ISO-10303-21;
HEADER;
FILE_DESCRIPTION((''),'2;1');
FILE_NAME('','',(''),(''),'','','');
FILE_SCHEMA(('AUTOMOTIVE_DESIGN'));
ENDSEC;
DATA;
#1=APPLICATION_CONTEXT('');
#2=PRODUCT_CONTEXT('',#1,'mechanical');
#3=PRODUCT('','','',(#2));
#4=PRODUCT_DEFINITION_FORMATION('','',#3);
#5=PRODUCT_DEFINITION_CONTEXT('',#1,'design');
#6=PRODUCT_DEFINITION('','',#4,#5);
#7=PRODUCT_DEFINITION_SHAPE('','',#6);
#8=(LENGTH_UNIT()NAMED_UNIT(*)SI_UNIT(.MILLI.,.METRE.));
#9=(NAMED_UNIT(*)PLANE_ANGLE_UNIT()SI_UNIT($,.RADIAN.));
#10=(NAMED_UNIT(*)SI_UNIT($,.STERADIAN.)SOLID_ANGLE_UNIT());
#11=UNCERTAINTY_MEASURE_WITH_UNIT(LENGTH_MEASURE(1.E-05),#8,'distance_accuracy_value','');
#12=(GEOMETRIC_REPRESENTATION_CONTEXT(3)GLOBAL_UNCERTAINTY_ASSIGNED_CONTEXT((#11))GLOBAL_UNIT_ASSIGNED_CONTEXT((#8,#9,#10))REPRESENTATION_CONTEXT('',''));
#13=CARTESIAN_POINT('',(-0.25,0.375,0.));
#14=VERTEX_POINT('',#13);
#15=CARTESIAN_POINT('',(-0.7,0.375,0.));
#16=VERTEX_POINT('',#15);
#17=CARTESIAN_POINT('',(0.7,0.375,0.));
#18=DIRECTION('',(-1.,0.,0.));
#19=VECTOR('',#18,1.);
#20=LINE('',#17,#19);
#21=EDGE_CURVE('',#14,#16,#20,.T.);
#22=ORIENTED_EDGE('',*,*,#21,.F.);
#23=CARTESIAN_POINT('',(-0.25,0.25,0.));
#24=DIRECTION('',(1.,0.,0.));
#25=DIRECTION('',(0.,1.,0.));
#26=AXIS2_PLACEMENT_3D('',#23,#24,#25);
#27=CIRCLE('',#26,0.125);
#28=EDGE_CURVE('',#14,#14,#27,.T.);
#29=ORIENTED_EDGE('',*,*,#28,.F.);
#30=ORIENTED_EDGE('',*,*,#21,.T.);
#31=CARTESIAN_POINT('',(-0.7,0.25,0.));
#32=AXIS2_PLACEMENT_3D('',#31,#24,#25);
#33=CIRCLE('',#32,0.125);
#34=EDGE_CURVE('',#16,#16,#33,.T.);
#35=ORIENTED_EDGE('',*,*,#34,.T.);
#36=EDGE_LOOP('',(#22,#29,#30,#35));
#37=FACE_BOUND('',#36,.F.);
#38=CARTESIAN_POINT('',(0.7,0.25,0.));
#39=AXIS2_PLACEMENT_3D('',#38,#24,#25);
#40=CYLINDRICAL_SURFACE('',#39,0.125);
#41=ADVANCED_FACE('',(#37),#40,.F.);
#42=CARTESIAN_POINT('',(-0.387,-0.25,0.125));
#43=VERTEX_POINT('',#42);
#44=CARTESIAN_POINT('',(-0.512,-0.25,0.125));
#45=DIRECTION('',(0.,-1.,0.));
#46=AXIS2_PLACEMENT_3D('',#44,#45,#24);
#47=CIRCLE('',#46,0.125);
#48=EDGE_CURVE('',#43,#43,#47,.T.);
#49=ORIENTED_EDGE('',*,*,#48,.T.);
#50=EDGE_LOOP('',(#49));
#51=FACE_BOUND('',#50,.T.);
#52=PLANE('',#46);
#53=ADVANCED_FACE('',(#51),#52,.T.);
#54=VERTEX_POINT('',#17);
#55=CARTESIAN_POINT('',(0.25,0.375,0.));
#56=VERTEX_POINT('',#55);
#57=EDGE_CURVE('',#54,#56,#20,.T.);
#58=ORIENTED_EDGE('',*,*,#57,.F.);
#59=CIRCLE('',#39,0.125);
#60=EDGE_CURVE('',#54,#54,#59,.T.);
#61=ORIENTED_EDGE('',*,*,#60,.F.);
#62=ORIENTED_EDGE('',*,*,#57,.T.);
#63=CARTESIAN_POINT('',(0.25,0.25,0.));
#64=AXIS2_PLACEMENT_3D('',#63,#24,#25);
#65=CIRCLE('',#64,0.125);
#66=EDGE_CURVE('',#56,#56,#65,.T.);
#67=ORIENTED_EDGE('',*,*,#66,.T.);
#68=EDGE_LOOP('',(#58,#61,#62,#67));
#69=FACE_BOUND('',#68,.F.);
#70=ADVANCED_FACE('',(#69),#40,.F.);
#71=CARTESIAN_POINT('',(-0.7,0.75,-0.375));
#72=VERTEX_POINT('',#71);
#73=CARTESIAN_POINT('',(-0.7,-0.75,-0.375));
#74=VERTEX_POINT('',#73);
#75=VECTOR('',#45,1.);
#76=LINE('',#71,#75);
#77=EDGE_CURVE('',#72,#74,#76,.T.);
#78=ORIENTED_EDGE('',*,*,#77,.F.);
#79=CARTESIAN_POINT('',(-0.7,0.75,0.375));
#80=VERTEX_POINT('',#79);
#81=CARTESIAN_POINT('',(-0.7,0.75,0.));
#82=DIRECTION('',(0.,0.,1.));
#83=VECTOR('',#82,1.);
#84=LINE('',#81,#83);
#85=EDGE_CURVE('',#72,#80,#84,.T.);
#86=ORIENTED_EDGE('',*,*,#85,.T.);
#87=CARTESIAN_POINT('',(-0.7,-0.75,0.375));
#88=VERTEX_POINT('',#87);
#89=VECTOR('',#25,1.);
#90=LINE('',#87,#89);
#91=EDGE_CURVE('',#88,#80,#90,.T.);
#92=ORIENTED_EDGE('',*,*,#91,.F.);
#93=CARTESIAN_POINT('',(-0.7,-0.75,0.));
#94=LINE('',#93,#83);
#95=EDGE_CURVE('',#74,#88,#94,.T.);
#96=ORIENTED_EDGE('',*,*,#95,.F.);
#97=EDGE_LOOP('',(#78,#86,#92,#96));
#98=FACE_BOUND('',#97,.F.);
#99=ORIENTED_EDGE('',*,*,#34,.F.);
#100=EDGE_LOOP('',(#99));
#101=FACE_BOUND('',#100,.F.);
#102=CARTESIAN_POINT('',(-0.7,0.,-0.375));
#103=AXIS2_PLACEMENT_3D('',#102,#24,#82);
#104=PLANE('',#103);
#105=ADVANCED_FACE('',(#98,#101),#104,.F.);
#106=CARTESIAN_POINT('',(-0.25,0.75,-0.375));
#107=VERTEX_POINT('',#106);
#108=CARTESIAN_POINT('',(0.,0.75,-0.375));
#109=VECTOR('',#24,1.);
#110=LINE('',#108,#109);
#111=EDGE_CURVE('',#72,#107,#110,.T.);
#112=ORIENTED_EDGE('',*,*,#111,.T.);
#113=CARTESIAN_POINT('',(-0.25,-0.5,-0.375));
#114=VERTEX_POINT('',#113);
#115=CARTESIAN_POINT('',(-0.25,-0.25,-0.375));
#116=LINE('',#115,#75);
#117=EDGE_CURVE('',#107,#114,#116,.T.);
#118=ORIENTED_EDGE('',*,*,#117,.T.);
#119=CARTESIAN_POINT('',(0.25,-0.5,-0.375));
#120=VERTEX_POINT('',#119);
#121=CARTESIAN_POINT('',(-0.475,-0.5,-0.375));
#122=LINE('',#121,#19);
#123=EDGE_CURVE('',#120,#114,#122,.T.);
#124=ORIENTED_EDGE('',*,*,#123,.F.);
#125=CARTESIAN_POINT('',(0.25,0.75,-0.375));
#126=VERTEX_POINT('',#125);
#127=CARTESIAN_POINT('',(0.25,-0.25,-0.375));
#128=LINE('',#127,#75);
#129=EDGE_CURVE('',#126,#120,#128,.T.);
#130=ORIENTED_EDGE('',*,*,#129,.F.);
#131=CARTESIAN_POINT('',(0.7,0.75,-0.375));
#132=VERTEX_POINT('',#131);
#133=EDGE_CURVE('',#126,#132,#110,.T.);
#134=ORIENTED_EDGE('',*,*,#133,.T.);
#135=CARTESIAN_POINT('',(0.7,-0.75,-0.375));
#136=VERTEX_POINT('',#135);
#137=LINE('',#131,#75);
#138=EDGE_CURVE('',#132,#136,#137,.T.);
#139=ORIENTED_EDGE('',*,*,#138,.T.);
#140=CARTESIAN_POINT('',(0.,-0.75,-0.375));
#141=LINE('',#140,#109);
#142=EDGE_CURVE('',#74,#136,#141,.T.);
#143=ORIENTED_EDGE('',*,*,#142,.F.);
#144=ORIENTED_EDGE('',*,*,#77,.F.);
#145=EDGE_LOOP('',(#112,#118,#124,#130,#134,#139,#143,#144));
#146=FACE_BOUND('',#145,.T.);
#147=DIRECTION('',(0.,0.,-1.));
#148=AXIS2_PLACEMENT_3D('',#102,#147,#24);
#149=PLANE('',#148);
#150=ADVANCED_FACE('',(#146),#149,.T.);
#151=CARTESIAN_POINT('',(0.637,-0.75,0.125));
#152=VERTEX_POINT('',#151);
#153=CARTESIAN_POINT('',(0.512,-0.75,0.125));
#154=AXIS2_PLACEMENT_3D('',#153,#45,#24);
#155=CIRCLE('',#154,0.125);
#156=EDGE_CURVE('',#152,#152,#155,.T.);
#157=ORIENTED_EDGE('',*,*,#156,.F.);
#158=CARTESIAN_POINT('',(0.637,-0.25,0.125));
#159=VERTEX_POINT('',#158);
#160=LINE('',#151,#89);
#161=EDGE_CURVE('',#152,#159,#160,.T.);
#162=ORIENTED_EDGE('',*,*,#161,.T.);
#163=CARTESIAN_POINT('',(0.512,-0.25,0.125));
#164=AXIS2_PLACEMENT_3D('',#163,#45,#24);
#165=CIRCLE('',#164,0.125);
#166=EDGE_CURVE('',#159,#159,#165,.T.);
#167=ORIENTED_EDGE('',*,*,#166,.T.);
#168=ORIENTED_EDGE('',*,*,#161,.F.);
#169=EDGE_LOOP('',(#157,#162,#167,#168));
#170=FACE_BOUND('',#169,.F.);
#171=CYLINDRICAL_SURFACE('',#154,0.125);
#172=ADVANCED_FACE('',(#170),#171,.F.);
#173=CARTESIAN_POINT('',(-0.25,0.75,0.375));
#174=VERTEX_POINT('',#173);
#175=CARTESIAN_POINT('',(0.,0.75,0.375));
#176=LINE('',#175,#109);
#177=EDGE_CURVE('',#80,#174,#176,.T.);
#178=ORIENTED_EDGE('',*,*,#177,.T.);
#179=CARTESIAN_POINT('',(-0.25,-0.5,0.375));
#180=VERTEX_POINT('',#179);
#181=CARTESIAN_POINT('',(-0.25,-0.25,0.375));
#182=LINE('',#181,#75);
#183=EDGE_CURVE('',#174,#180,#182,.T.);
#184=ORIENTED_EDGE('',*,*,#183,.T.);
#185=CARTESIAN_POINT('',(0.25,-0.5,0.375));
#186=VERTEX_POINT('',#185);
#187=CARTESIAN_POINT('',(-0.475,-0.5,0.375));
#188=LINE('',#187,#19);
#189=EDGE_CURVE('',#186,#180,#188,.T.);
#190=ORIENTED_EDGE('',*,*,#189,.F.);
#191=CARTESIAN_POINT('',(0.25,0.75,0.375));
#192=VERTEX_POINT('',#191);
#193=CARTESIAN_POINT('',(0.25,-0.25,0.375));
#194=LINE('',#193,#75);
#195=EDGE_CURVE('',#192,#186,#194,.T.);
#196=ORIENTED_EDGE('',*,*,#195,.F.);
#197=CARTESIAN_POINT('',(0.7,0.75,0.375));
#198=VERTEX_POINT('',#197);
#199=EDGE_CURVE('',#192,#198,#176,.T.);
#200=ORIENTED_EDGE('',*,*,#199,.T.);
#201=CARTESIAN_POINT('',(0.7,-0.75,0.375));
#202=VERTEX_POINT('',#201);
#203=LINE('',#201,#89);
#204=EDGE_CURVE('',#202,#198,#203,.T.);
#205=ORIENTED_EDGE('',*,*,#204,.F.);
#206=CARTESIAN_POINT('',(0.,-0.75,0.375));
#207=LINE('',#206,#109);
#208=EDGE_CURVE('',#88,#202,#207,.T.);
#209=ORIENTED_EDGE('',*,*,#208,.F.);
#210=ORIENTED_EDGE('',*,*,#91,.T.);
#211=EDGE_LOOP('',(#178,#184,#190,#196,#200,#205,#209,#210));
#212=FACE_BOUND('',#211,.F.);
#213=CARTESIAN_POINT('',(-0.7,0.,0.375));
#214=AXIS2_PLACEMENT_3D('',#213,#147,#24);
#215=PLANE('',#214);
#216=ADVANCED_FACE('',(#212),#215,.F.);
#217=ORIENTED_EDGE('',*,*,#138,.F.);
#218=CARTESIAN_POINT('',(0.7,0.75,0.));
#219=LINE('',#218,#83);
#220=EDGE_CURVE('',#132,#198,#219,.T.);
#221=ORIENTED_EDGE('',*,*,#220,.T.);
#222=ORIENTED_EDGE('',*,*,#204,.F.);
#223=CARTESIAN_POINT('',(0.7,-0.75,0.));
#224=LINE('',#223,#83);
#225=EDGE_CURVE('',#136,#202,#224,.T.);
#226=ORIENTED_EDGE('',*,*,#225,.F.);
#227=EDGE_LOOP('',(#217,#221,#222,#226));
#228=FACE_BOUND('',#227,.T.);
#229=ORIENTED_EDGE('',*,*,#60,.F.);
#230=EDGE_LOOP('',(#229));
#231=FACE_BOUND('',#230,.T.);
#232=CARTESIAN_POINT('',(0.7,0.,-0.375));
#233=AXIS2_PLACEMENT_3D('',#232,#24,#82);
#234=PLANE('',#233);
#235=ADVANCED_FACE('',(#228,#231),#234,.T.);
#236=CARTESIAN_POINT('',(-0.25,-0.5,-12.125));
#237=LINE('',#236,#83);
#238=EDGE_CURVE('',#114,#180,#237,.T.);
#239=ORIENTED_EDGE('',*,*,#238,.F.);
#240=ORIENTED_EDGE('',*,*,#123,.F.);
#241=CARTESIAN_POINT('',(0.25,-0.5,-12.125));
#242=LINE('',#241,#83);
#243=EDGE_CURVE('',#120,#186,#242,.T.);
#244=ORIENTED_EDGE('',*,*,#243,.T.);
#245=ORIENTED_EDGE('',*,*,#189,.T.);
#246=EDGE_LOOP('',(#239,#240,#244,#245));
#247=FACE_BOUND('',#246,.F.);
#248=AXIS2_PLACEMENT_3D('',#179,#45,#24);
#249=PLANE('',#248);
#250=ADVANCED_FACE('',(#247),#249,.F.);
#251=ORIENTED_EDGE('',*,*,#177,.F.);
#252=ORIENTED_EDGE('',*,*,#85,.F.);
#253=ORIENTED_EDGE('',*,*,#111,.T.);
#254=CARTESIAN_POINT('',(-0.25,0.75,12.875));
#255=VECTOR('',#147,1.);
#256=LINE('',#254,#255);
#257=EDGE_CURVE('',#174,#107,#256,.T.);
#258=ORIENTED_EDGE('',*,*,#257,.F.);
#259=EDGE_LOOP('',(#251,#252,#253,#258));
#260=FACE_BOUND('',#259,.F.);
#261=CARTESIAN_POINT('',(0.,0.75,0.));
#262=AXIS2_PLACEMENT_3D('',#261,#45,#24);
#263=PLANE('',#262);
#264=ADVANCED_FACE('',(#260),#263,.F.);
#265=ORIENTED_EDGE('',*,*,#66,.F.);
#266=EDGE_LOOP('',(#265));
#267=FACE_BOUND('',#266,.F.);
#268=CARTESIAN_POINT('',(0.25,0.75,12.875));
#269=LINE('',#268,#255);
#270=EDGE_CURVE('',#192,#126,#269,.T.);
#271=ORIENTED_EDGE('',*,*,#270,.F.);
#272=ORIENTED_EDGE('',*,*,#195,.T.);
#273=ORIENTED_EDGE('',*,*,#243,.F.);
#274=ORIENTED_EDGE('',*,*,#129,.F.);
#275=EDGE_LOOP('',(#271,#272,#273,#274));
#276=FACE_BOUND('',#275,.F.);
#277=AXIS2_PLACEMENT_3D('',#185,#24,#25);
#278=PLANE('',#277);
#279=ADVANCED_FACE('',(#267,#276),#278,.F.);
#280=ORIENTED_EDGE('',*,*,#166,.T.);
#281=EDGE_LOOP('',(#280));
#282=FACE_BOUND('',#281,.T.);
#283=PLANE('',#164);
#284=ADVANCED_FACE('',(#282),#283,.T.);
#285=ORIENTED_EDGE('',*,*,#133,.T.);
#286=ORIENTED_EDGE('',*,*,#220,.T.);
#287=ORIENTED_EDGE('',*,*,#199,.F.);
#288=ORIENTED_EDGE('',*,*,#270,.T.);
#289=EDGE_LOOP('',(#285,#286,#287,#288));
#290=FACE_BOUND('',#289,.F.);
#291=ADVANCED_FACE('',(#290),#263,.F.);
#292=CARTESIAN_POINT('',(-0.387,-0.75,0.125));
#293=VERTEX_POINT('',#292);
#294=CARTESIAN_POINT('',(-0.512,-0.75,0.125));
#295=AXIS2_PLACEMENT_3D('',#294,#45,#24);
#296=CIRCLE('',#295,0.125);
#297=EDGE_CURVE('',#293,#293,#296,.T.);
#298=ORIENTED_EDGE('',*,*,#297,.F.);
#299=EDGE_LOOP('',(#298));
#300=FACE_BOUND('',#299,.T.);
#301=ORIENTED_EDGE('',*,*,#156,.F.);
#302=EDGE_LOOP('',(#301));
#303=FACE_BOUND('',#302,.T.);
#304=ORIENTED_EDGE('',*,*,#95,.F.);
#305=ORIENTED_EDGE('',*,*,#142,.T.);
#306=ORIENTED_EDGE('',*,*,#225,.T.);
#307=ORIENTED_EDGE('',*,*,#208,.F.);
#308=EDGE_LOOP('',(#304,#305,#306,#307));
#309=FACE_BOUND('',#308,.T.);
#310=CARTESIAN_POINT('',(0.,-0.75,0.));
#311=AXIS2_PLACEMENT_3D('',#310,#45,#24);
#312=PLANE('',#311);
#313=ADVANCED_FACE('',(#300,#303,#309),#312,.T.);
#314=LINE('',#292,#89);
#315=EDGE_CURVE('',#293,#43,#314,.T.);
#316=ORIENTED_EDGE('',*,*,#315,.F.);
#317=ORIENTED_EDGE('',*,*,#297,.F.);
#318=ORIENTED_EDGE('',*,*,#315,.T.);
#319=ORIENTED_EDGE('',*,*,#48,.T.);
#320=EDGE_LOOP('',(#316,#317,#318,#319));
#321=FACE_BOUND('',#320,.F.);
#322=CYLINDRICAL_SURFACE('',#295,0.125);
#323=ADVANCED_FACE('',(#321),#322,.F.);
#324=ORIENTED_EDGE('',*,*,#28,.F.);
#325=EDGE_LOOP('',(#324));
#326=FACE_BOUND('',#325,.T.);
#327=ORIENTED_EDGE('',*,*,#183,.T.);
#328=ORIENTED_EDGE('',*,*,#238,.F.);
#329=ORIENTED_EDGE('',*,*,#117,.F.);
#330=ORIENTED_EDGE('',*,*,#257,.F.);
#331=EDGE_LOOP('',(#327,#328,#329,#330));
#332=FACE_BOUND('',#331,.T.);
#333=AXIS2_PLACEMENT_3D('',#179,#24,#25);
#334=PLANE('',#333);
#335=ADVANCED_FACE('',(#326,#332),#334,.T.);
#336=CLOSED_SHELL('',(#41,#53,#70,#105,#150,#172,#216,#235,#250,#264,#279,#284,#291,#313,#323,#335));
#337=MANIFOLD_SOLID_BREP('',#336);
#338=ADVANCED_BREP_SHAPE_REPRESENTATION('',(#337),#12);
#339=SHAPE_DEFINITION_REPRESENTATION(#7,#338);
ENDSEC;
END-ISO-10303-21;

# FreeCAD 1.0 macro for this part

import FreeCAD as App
import Part
import Sketcher
Q = App.Units.Quantity


def add_polygon(sketch, points):
    """Adds a closed chain of lines whose ends are joined by coincident constraints."""
    first, n = sketch.GeometryCount, len(points)
    for a, b in zip(points, points[1:] + points[:1]):
        sketch.addGeometry(Part.LineSegment(App.Vector(*a, 0), App.Vector(*b, 0)), False)
    for i in range(n):
        sketch.addConstraint(Sketcher.Constraint("Coincident", first + i, 2, first + (i + 1) % n, 1))

doc = App.newDocument("Part")
params = doc.addObject("Spreadsheet::Sheet", "Params")
for row, (alias, value) in enumerate([
    ("sketch1_width", "1.4 mm"),
    ("sketch1_height", "0.75 mm"),
    ("pad1_length", "1.5 mm"),
    ("sketch2_diameter", "0.25 mm"),
    ("pocket1_length", "25 mm"),
    ("sketch3_width", "0.5 mm"),
    ("sketch3_height", "1.25 mm"),
    ("pocket2_length", "25 mm"),
    ("sketch4_diameter", "0.25 mm"),
    ("pocket3_length", "0.5 mm"),
], start=1):
    params.set(f"A{row}", alias)
    params.set(f"B{row}", "=" + value)
    params.setAlias(f"B{row}", alias)

body = doc.addObject("PartDesign::Body", "Body")

# Sketch on XZ plane
sketch1 = doc.addObject("Sketcher::SketchObject", "Sketch")
body.addObject(sketch1)
sketch1.AttachmentSupport = (doc.XZ_Plane, [""])
sketch1.MapMode = "FlatFace"
add_polygon(sketch1, [(-0.7, 0.4), (-0.7, -0.4), (0.7, -0.4), (0.7, 0.4)])  # lines 0-3
sketch1.addConstraint(Sketcher.Constraint("Vertical", 0))
sketch1.addConstraint(Sketcher.Constraint("Horizontal", 1))
sketch1.addConstraint(Sketcher.Constraint("Vertical", 2))
sketch1.addConstraint(Sketcher.Constraint("Horizontal", 3))
sketch1.addConstraint(Sketcher.Constraint("Symmetric", 0, 2, 2, 2, -1, 1))
sketch1.addConstraint(Sketcher.Constraint("DistanceX", 1, 1, 1, 2, Q("1.4 mm")))
sketch1.addConstraint(Sketcher.Constraint("DistanceY", 0, 2, 0, 1, Q("0.75 mm")))
sketch1.setExpression("Constraints[9]", "Params.sketch1_width")
sketch1.setExpression("Constraints[10]", "Params.sketch1_height")
pad1 = doc.addObject("PartDesign::Pad", "Pad")
body.addObject(pad1)
pad1.Profile = sketch1
pad1.setExpression("Length", "Params.pad1_length")
pad1.Midplane = True

# Sketch on YZ plane
sketch2 = doc.addObject("Sketcher::SketchObject", "Sketch001")
body.addObject(sketch2)
sketch2.AttachmentSupport = (doc.YZ_Plane, [""])
sketch2.MapMode = "FlatFace"
sketch2.AttachmentOffset = App.Placement(App.Vector(0, 0, 0.7), App.Rotation())
sketch2.addGeometry(Part.Circle(App.Vector(0.25, 0, 0), App.Vector(0, 0, 1), 0.12), False)
sketch2.addConstraint(Sketcher.Constraint("PointOnObject", 0, 3, -1))
sketch2.addConstraint(Sketcher.Constraint("Diameter", 0, Q("0.25 mm")))
sketch2.addConstraint(Sketcher.Constraint("DistanceX", -1, 1, 0, 3, Q("0.25 mm")))
sketch2.setExpression("Constraints[1]", "Params.sketch2_diameter")
pocket1 = doc.addObject("PartDesign::Pocket", "Pocket")
body.addObject(pocket1)
pocket1.Profile = sketch2
pocket1.setExpression("Length", "Params.pocket1_length")

# Sketch on XY plane
sketch3 = doc.addObject("Sketcher::SketchObject", "Sketch002")
body.addObject(sketch3)
sketch3.AttachmentSupport = (doc.XY_Plane, [""])
sketch3.MapMode = "FlatFace"
sketch3.AttachmentOffset = App.Placement(App.Vector(0, 0, 0.375), App.Rotation())
add_polygon(sketch3, [(-0.2, 0.8), (-0.2, -0.5), (0.2, -0.5), (0.2, 0.8)])  # lines 0-3
sketch3.addConstraint(Sketcher.Constraint("Vertical", 0))
sketch3.addConstraint(Sketcher.Constraint("Horizontal", 1))
sketch3.addConstraint(Sketcher.Constraint("Vertical", 2))
sketch3.addConstraint(Sketcher.Constraint("Horizontal", 3))
sketch3.addConstraint(Sketcher.Constraint("DistanceX", 1, 1, 1, 2, Q("0.5 mm")))
sketch3.addConstraint(Sketcher.Constraint("DistanceY", 0, 2, 0, 1, Q("1.25 mm")))
sketch3.addConstraint(Sketcher.Constraint("DistanceY", 0, 2, -1, 1, Q("0.5 mm")))
sketch3.addConstraint(Sketcher.Constraint("DistanceX", 0, 2, -1, 1, Q("0.25 mm")))
sketch3.setExpression("Constraints[8]", "Params.sketch3_width")
sketch3.setExpression("Constraints[9]", "Params.sketch3_height")
pocket2 = doc.addObject("PartDesign::Pocket", "Pocket001")
body.addObject(pocket2)
pocket2.Profile = sketch3
pocket2.setExpression("Length", "Params.pocket2_length")
pocket2.Midplane = True

# Sketch on XZ plane
sketch4 = doc.addObject("Sketcher::SketchObject", "Sketch003")
body.addObject(sketch4)
sketch4.AttachmentSupport = (doc.XZ_Plane, [""])
sketch4.MapMode = "FlatFace"
sketch4.AttachmentOffset = App.Placement(App.Vector(0, 0, 0.75), App.Rotation())
sketch4.addGeometry(Part.Circle(App.Vector(0.51, 0.12, 0), App.Vector(0, 0, 1), 0.12), False)
sketch4.addGeometry(Part.Circle(App.Vector(-0.51, 0.12, 0), App.Vector(0, 0, 1), 0.12), False)
sketch4.addConstraint(Sketcher.Constraint("Equal", 0, 1))
sketch4.addConstraint(Sketcher.Constraint("Symmetric", 0, 3, 1, 3, -2))
sketch4.addConstraint(Sketcher.Constraint("Diameter", 0, Q("0.25 mm")))
sketch4.addConstraint(Sketcher.Constraint("DistanceX", -1, 1, 0, 3, Q("0.512 mm")))
sketch4.addConstraint(Sketcher.Constraint("DistanceY", -1, 1, 0, 3, Q("0.125 mm")))
sketch4.setExpression("Constraints[2]", "Params.sketch4_diameter")
pocket3 = doc.addObject("PartDesign::Pocket", "Pocket002")
body.addObject(pocket3)
pocket3.Profile = sketch4
pocket3.setExpression("Length", "Params.pocket3_length")

doc.recompute()
